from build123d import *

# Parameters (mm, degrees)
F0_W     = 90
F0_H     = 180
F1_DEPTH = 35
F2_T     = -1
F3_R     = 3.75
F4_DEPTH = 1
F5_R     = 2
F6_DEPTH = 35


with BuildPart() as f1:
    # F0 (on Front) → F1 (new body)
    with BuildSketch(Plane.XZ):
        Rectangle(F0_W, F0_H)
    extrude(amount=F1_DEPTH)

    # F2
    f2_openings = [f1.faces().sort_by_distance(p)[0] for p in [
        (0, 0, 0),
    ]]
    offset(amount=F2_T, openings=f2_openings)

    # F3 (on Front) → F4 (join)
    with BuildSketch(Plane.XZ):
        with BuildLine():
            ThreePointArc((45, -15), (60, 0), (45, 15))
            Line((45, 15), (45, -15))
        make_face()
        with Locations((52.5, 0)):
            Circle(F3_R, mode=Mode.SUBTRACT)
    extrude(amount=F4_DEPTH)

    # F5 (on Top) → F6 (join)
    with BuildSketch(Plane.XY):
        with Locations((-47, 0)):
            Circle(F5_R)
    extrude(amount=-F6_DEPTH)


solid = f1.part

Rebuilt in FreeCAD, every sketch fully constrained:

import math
import FreeCAD as App
import Part
import Sketcher

V = App.Vector
Q = App.Units.Quantity


def faces_at(feature, points):
    """Names of the faces that lie closest to the given points."""
    faces = feature.Shape.Faces
    near = lambda p: min(range(len(faces)), key=lambda i: faces[i].distToShape(Part.Vertex(*p))[0])
    return sorted({f"Face{near(p) + 1}" for p in points})

doc = App.newDocument("Part")
body = doc.addObject("PartDesign::Body", "Body")
body.AllowCompound = True

# Sketch on XZ plane
sketch1 = body.newObject("Sketcher::SketchObject", "Sketch")
sketch1.AttachmentSupport = (doc.getObject("XZ_Plane"), [""])
sketch1.MapMode = "FlatFace"
sketch1.addGeometry([
    Part.LineSegment(V(-45, 90, 0), V(-45, -90, 0)),
    Part.LineSegment(V(-45, -90, 0), V(45, -90, 0)),
    Part.LineSegment(V(45, -90, 0), V(45, 90, 0)),
    Part.LineSegment(V(45, 90, 0), V(-45, 90, 0)),
], False)
sketch1.addConstraint([
    Sketcher.Constraint("Coincident", 0, 2, 1, 1),
    Sketcher.Constraint("Coincident", 1, 2, 2, 1),
    Sketcher.Constraint("Coincident", 2, 2, 3, 1),
    Sketcher.Constraint("Coincident", 3, 2, 0, 1),
    Sketcher.Constraint("Vertical", 0),
    Sketcher.Constraint("Horizontal", 1),
    Sketcher.Constraint("Vertical", 2),
    Sketcher.Constraint("Horizontal", 3),
    Sketcher.Constraint("Symmetric", 0, 2, 2, 2, -1, 1),
    Sketcher.Constraint("DistanceX", 1, 1, 1, 2, Q("90 mm")),
    Sketcher.Constraint("DistanceY", 0, 2, 0, 1, Q("180 mm")),
])
pad1 = body.newObject("PartDesign::Pad", "Pad")
pad1.Profile = sketch1
pad1.Length = 35
doc.recompute()

thickness = body.newObject("PartDesign::Thickness", "Thickness")
thickness.Base = (pad1, faces_at(pad1, [(0, 0, 0)]))
thickness.Value = 1
thickness.Reversed = True
thickness.Join = "Arc"

# Sketch on XZ plane
sketch2 = body.newObject("Sketcher::SketchObject", "Sketch001")
sketch2.AttachmentSupport = (doc.getObject("XZ_Plane"), [""])
sketch2.MapMode = "FlatFace"
sketch2.addGeometry([
    Part.ArcOfCircle(Part.Circle(V(45, 0, 0), V(0, 0, 1), 15), math.radians(-90), math.radians(90)),
    Part.LineSegment(V(45, 15, 0), V(45, -15, 0)),
    Part.Circle(V(52.5, 0, 0), V(0, 0, 1), 3.8),
], False)
sketch2.addConstraint([
    Sketcher.Constraint("Coincident", 0, 1, 1, 2),
    Sketcher.Constraint("Coincident", 1, 1, 0, 2),
    Sketcher.Constraint("Vertical", 1),
    Sketcher.Constraint("PointOnObject", 0, 3, -1),
    Sketcher.Constraint("PointOnObject", 2, 3, -1),
    Sketcher.Constraint("Radius", 0, Q("15 mm")),
    Sketcher.Constraint("Diameter", 2, Q("7.5 mm")),
    Sketcher.Constraint("DistanceX", -1, 1, 0, 3, Q("45 mm")),
    Sketcher.Constraint("DistanceX", -1, 1, 0, 1, Q("45 mm")),
    Sketcher.Constraint("DistanceX", -1, 1, 2, 3, Q("52.5 mm")),
])
pad2 = body.newObject("PartDesign::Pad", "Pad001")
pad2.Profile = sketch2
pad2.Length = 1

# Sketch on XY plane
sketch3 = body.newObject("Sketcher::SketchObject", "Sketch002")
sketch3.AttachmentSupport = (doc.getObject("XY_Plane"), [""])
sketch3.MapMode = "FlatFace"
sketch3.addGeometry(Part.Circle(V(-47, 0, 0), V(0, 0, 1), 2), False)
sketch3.addConstraint([
    Sketcher.Constraint("PointOnObject", 0, 3, -1),
    Sketcher.Constraint("Diameter", 0, Q("4 mm")),
    Sketcher.Constraint("DistanceX", 0, 3, -1, 1, Q("47 mm")),
])
pad3 = body.newObject("PartDesign::Pad", "Pad002")
pad3.Profile = sketch3
pad3.Length = 35
pad3.Reversed = True

doc.recompute()
